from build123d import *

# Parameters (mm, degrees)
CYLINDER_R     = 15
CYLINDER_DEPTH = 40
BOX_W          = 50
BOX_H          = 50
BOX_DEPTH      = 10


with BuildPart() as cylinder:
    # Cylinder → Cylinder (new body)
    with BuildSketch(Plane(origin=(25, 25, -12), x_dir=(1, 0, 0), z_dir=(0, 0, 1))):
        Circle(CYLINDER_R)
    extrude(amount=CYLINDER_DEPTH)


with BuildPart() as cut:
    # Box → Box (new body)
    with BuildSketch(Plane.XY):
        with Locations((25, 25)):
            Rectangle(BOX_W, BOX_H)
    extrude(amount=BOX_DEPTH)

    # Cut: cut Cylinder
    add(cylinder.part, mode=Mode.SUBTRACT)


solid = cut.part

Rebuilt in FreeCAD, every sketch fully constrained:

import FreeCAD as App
import Part
import Sketcher
from FreeCAD import Vector


def add_polygon(sketch, points):
    """Adds a closed chain of lines whose ends are joined by coincident constraints."""
    first, n = sketch.GeometryCount, len(points)
    for a, b in zip(points, points[1:] + points[:1]):
        sketch.addGeometry(Part.LineSegment(App.Vector(*a, 0), App.Vector(*b, 0)), False)
    for i in range(n):
        sketch.addConstraint(Sketcher.Constraint("Coincident", first + i, 2, first + (i + 1) % n, 1))

doc = App.newDocument("Part")
body = doc.addObject("PartDesign::Body", "Body")

sketch1 = body.newObject("Sketcher::SketchObject", "Sketch")
sketch1.AttachmentSupport = (doc.getObject("XY_Plane"), [""])
sketch1.MapMode = "FlatFace"
sketch1.AttachmentOffset = App.Placement(Vector(0, 0, -12), App.Rotation())
sketch1.addGeometry(Part.Circle(Vector(25, 25, 0), Vector(0, 0, 1), 15), False)
sketch1.addConstraint(Sketcher.Constraint("Diameter", 0, 30.0))
sketch1.addConstraint(Sketcher.Constraint("DistanceX", -1, 1, 0, 3, 25.0))
sketch1.addConstraint(Sketcher.Constraint("DistanceY", -1, 1, 0, 3, 25.0))
pad1 = body.newObject("PartDesign::Pad", "Pad")
pad1.Profile = sketch1
pad1.Length = 40
body2 = doc.addObject("PartDesign::Body", "Body001")

sketch2 = body2.newObject("Sketcher::SketchObject", "Sketch001")
sketch2.AttachmentSupport = (doc.getObject("XY_Plane001"), [""])
sketch2.MapMode = "FlatFace"
add_polygon(sketch2, [(0, 50), (0, 0), (50, 0), (50, 50)])
sketch2.addConstraint(Sketcher.Constraint("Vertical", 0))
sketch2.addConstraint(Sketcher.Constraint("Horizontal", 1))
sketch2.addConstraint(Sketcher.Constraint("Vertical", 2))
sketch2.addConstraint(Sketcher.Constraint("Horizontal", 3))
sketch2.addConstraint(Sketcher.Constraint("Coincident", 0, 2, -1, 1))
sketch2.addConstraint(Sketcher.Constraint("Equal", 3, 0))
sketch2.addConstraint(Sketcher.Constraint("DistanceX", 1, 1, 1, 2, 50.0))
pad2 = body2.newObject("PartDesign::Pad", "Pad001")
pad2.Profile = sketch2
pad2.Length = 10
doc.recompute()

boolean = body2.newObject("PartDesign::Boolean", "Boolean")
boolean.Type = "Cut"
boolean.addObjects([body])

doc.recompute()
